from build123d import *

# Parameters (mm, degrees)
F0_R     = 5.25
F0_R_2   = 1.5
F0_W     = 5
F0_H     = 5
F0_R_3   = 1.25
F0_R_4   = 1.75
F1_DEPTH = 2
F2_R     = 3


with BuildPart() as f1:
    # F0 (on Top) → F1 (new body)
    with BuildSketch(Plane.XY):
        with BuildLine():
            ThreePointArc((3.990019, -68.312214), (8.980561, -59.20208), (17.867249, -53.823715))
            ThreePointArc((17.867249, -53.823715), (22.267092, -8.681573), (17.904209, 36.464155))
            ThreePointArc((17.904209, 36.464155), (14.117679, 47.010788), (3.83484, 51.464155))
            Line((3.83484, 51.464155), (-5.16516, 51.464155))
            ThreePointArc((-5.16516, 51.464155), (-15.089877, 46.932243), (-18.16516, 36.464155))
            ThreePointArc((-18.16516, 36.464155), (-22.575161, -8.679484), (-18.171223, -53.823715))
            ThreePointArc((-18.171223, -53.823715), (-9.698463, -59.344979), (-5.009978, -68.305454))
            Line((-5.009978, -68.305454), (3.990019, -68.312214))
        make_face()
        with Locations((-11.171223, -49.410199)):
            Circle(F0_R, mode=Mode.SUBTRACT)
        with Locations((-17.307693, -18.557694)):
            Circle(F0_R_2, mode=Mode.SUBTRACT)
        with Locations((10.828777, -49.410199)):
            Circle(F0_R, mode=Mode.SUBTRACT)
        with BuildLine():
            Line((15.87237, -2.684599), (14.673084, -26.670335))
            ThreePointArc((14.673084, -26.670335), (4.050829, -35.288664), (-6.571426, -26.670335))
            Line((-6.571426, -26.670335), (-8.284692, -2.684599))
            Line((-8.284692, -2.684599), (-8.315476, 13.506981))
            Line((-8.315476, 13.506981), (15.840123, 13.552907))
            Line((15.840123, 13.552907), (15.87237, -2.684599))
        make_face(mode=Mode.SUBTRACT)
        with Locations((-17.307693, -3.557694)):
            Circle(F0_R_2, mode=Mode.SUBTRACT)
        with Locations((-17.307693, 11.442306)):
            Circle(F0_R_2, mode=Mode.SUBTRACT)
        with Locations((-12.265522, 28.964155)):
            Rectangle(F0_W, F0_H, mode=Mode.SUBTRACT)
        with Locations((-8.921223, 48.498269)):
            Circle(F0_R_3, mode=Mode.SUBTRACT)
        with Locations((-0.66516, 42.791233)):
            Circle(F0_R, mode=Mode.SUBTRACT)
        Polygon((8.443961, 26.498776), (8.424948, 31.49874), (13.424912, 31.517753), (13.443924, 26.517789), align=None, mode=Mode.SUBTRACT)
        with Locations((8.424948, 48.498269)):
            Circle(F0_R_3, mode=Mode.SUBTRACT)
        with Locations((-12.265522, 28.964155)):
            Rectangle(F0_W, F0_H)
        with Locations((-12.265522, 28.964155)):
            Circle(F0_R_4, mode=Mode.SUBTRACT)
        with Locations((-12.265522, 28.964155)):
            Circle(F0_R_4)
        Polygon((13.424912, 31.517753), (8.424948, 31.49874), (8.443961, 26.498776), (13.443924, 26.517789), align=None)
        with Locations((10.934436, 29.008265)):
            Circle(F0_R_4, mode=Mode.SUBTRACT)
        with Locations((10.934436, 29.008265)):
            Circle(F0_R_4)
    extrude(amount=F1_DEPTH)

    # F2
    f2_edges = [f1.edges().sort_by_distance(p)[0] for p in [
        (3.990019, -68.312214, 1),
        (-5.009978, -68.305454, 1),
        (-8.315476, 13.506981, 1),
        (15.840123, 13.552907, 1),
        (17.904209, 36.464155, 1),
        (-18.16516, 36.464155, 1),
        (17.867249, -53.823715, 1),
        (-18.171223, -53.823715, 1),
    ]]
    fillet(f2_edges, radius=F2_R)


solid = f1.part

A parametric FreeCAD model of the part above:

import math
import FreeCAD as App
import Part
import Sketcher
from FreeCAD import Vector


def edges_at(feature, points):
    """Names of the edges that pass closest to the given points."""
    edges = feature.Shape.Edges
    near = lambda p: min(range(len(edges)), key=lambda i: edges[i].distToShape(Part.Vertex(*p))[0])
    return sorted({f"Edge{near(p) + 1}" for p in points})

doc = App.newDocument("Part")
body = doc.addObject("PartDesign::Body", "Body")

# Sketch on XY plane
sketch1 = body.newObject("Sketcher::SketchObject", "Sketch")
sketch1.AttachmentSupport = (doc.getObject("XY_Plane"), [""])
sketch1.MapMode = "FlatFace"
sketch1.addGeometry([
    Part.ArcOfCircle(Part.Circle(Vector(23.424098, -73.036246, 0), Vector(0, 0, 1), 19.999998), math.radians(106.13148), math.radians(166.337535)),  # 0
    Part.ArcOfCircle(Part.Circle(Vector(-212.496749, -8.585471, 0), Vector(0, 0, 1), 234.76386), math.radians(-11.110208), math.radians(11.063299)),  # 1
    Part.ArcOfCircle(Part.Circle(Vector(3.83484, 37.365917, 0), Vector(0, 0, 1), 14.098238), math.radians(-3.667298), math.radians(90)),  # 2
    Part.LineSegment(Vector(3.83484, 51.464155, 0), Vector(-5.16516, 51.464155, 0)),  # 3
    Part.ArcOfCircle(Part.Circle(Vector(-5.165161, 38.330823, 0), Vector(0, 0, 1), 13.133332), math.radians(89.999996), math.radians(188.171238)),  # 4
    Part.ArcOfCircle(Part.Circle(Vector(210.850127, -8.695159, 0), Vector(0, 0, 1), 233.425288), math.radians(168.84501), math.radians(191.147295)),  # 5
    Part.ArcOfCircle(Part.Circle(Vector(-24.499286, -72.796212, 0), Vector(0, 0, 1), 20), math.radians(12.975706), math.radians(71.55446)),  # 6
    Part.LineSegment(Vector(-5.009978, -68.305454, 0), Vector(3.990019, -68.312214, 0)),  # 7
    Part.Circle(Vector(-11.171223, -49.410199, 0), Vector(0, 0, 1), 5.25),  # 8
    Part.Circle(Vector(-17.307693, -18.557694, 0), Vector(0, 0, 1), 1.5),  # 9
    Part.Circle(Vector(-17.307693, -3.557694, 0), Vector(0, 0, 1), 1.5),  # 10
    Part.Circle(Vector(10.828777, -49.410199, 0), Vector(0, 0, 1), 5.25),  # 11
    Part.LineSegment(Vector(15.840123, 13.552907, 0), Vector(15.87237, -2.684599, 0)),  # 12
    Part.LineSegment(Vector(15.87237, -2.684599, 0), Vector(14.673084, -26.670335, 0)),  # 13
    Part.ArcOfCircle(Part.Circle(Vector(4.050829, -24.433433, 0), Vector(0, 0, 1), 10.855231), math.radians(-168.10805), math.radians(-11.89195)),  # 14
    Part.LineSegment(Vector(-6.571426, -26.670335, 0), Vector(-8.284692, -2.684599, 0)),  # 15
    Part.LineSegment(Vector(-8.284692, -2.684599, 0), Vector(-8.315476, 13.506981, 0)),  # 16
    Part.LineSegment(Vector(-8.315476, 13.506981, 0), Vector(15.840123, 13.552907, 0)),  # 17
    Part.Circle(Vector(-17.307693, 11.442306, 0), Vector(0, 0, 1), 1.5),  # 18
    Part.Circle(Vector(-8.921223, 48.498269, 0), Vector(0, 0, 1), 1.25),  # 19
    Part.Circle(Vector(-0.66516, 42.791233, 0), Vector(0, 0, 1), 5.25),  # 20
    Part.Circle(Vector(8.424948, 48.498269, 0), Vector(0, 0, 1), 1.25),  # 21
], False)
sketch1.addConstraint([
    Sketcher.Constraint("Coincident", 0, 1, 1, 1),
    Sketcher.Constraint("Coincident", 1, 2, 2, 1),
    Sketcher.Constraint("Coincident", 2, 2, 3, 1),
    Sketcher.Constraint("Coincident", 3, 2, 4, 1),
    Sketcher.Constraint("Coincident", 4, 2, 5, 1),
    Sketcher.Constraint("Coincident", 5, 2, 6, 2),
    Sketcher.Constraint("Coincident", 6, 1, 7, 1),
    Sketcher.Constraint("Coincident", 7, 2, 0, 2),
    Sketcher.Constraint("Coincident", 12, 2, 13, 1),
    Sketcher.Constraint("Coincident", 13, 2, 14, 2),
    Sketcher.Constraint("Coincident", 14, 1, 15, 1),
    Sketcher.Constraint("Coincident", 15, 2, 16, 1),
    Sketcher.Constraint("Coincident", 16, 2, 17, 1),
    Sketcher.Constraint("Coincident", 17, 2, 12, 1),
    Sketcher.Constraint("Horizontal", 3),
    Sketcher.Constraint("Diameter", 9, 3.0),
    Sketcher.Constraint("Diameter", 10, 3.0),
    Sketcher.Constraint("Diameter", 18, 3.0),
    Sketcher.Constraint("Radius", 0, 19.999998),
    Sketcher.Constraint("Radius", 6, 20.0),
    Sketcher.Constraint("Diameter", 8, 10.5),
    Sketcher.Constraint("Diameter", 11, 10.5),
    Sketcher.Constraint("Diameter", 19, 2.5),
    Sketcher.Constraint("Diameter", 20, 10.5),
    Sketcher.Constraint("Diameter", 21, 2.5),
    Sketcher.Constraint("DistanceX", 3, 2, 3, 1, 9.0),
    Sketcher.Constraint("Distance", 7, 9.0),
    Sketcher.Constraint("DistanceX", 4, 3, 2, 3, 9.000001),
    Sketcher.Constraint("DistanceY", 9, 3, 10, 3, 15.0),
    Sketcher.Constraint("DistanceX", 8, 3, 11, 3, 22.0),
    Sketcher.Constraint("DistanceY", 10, 3, 18, 3, 15.0),
    Sketcher.Constraint("DistanceX", 4, 3, 2, 2, 9.000001),
    Sketcher.Constraint("DistanceX", 4, 2, 4, 3, 12.999999),
    Sketcher.Constraint("DistanceY", 4, 2, 3, 2, 15.0),
    Sketcher.Constraint("DistanceX", 5, 2, 8, 3, 7.0),
    Sketcher.Constraint("DistanceX", 4, 3, 20, 3, 4.500001),
    Sketcher.Constraint("Radius", 1, 234.76386),
    Sketcher.Constraint("Radius", 2, 14.098238),
    Sketcher.Constraint("Radius", 5, 233.425288),
    Sketcher.Constraint("Radius", 14, 10.855231),
    Sketcher.Constraint("DistanceX", 10, 3, 15, 2, 9.023001),
    Sketcher.Constraint("DistanceX", 18, 3, 15, 2, 9.023001),
    Sketcher.Constraint("DistanceX", 9, 3, 15, 2, 9.023001),
    Sketcher.Constraint("Distance", 13, 24.015699),
    Sketcher.Constraint("DistanceX", -1, 1, 0, 3, 23.424098),
    Sketcher.Constraint("DistanceY", 8, 3, -1, 1, 49.410199),
    Sketcher.Constraint("DistanceY", 11, 3, -1, 1, 49.410199),
    Sketcher.Constraint("DistanceY", 12, 2, -1, 1, 2.684599),
    Sketcher.Constraint("DistanceY", 15, 2, -1, 1, 2.684599),
    Sketcher.Constraint("DistanceY", 7, 2, 0, 1, 14.488499),
    Sketcher.Constraint("DistanceY", 13, 2, 14, 3, 2.236902),
    Sketcher.Constraint("DistanceY", 14, 1, 14, 3, 2.236902),
    Sketcher.Constraint("DistanceX", 16, 2, 17, 2, 24.155599),
    Sketcher.Constraint("Distance", 12, 16.237538),
    Sketcher.Constraint("Distance", 16, 16.191609),
    Sketcher.Constraint("DistanceX", 1, 3, -1, 1, 212.496749),
    Sketcher.Constraint("DistanceY", 1, 3, -1, 1, 8.585471),
    Sketcher.Constraint("DistanceX", -1, 1, 2, 3, 3.83484),
    Sketcher.Constraint("DistanceY", 5, 3, -1, 1, 8.695159),
    Sketcher.Constraint("DistanceY", 6, 3, -1, 1, 72.796212),
    Sketcher.Constraint("DistanceX", -1, 1, 14, 3, 4.050829),
    Sketcher.Constraint("DistanceY", -1, 1, 19, 3, 48.498269),
    Sketcher.Constraint("DistanceY", -1, 1, 21, 3, 48.498269),
    Sketcher.Constraint("DistanceX", -1, 1, 0, 1, 17.867249),
    Sketcher.Constraint("DistanceX", -1, 1, 12, 2, 15.87237),
    Sketcher.Constraint("DistanceY", 1, 3, 2, 3, 45.951388),
    Sketcher.Constraint("DistanceX", 8, 3, 0, 3, 34.595321),
    Sketcher.Constraint("DistanceX", 9, 3, 8, 3, 6.13647),
    Sketcher.Constraint("DistanceY", 9, 3, 2, 3, 55.923611),
    Sketcher.Constraint("DistanceX", 19, 3, 4, 3, 3.756062),
    Sketcher.Constraint("DistanceY", 4, 3, 20, 3, 4.46041),
    Sketcher.Constraint("DistanceX", 20, 3, 21, 3, 9.090108),
    Sketcher.Constraint("DistanceX", 16, 2, -1, 1, 8.315476),
])
pad1 = body.newObject("PartDesign::Pad", "Pad")
pad1.Profile = sketch1
pad1.Length = 2
doc.recompute()

fillet = body.newObject("PartDesign::Fillet", "Fillet")
fillet.Base = (pad1, edges_at(pad1, [
    (3.99, -68.312, 1),
    (-5.01, -68.305, 1),
    (-8.315, 13.507, 1),
    (15.84, 13.553, 1),
    (17.904, 36.464, 1),
    (-18.165, 36.464, 1),
    (17.867, -53.824, 1),
    (-18.171, -53.824, 1),
]))
fillet.Radius = 3

doc.recompute()
